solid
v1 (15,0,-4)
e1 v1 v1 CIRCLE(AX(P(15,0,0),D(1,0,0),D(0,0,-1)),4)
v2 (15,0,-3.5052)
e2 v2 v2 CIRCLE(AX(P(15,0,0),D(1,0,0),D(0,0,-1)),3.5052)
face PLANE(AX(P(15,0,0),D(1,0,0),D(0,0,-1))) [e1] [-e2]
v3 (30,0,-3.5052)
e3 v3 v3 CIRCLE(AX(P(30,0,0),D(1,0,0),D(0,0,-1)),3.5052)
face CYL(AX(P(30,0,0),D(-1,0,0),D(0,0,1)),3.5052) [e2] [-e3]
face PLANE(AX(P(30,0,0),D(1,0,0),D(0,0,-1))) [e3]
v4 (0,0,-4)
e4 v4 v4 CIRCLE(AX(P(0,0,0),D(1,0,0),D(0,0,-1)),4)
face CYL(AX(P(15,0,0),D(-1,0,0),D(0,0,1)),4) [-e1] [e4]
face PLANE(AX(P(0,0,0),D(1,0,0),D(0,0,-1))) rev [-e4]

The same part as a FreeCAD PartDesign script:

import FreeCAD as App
import Part
import Sketcher
from FreeCAD import Vector

doc = App.newDocument("Part")
params = doc.addObject("Spreadsheet::Sheet", "Params")
for row, (alias, value) in enumerate([
    ("sketch1_diameter", "8 mm"),
    ("pad1_length", "15 mm"),
    ("pad2_length", "15 mm"),
], start=1):
    params.set(f"A{row}", alias)
    params.set(f"B{row}", "=" + value)
    params.setAlias(f"B{row}", alias)

body = doc.addObject("PartDesign::Body", "Body")

sketch1 = body.newObject("Sketcher::SketchObject", "Sketch")
sketch1.AttachmentSupport = (doc.getObject("YZ_Plane"), [""])
sketch1.MapMode = "FlatFace"
sketch1.addGeometry(Part.Circle(Vector(0, 0, 0), Vector(0, 0, 1), 4), False)
sketch1.addConstraint([
    Sketcher.Constraint("Coincident", 0, 3, -1, 1),
    Sketcher.Constraint("Diameter", 0, 8.0),
])
sketch1.setExpression("Constraints[1]", "Params.sketch1_diameter")
pad1 = body.newObject("PartDesign::Pad", "Pad")
pad1.Profile = sketch1
pad1.setExpression("Length", "Params.pad1_length")

sketch2 = body.newObject("Sketcher::SketchObject", "Sketch001")
sketch2.AttachmentSupport = (doc.getObject("YZ_Plane"), [""])
sketch2.MapMode = "FlatFace"
sketch2.AttachmentOffset = App.Placement(Vector(0, 0, 15), App.Rotation())
sketch2.addGeometry(Part.Circle(Vector(0, 0, 0), Vector(0, 0, 1), 3.5), False)
sketch2.addConstraint([
    Sketcher.Constraint("Coincident", 0, 3, -1, 1),
    Sketcher.Constraint("Diameter", 0, 7.0104),
])
pad2 = body.newObject("PartDesign::Pad", "Pad001")
pad2.Profile = sketch2
pad2.setExpression("Length", "Params.pad2_length")

doc.recompute()
